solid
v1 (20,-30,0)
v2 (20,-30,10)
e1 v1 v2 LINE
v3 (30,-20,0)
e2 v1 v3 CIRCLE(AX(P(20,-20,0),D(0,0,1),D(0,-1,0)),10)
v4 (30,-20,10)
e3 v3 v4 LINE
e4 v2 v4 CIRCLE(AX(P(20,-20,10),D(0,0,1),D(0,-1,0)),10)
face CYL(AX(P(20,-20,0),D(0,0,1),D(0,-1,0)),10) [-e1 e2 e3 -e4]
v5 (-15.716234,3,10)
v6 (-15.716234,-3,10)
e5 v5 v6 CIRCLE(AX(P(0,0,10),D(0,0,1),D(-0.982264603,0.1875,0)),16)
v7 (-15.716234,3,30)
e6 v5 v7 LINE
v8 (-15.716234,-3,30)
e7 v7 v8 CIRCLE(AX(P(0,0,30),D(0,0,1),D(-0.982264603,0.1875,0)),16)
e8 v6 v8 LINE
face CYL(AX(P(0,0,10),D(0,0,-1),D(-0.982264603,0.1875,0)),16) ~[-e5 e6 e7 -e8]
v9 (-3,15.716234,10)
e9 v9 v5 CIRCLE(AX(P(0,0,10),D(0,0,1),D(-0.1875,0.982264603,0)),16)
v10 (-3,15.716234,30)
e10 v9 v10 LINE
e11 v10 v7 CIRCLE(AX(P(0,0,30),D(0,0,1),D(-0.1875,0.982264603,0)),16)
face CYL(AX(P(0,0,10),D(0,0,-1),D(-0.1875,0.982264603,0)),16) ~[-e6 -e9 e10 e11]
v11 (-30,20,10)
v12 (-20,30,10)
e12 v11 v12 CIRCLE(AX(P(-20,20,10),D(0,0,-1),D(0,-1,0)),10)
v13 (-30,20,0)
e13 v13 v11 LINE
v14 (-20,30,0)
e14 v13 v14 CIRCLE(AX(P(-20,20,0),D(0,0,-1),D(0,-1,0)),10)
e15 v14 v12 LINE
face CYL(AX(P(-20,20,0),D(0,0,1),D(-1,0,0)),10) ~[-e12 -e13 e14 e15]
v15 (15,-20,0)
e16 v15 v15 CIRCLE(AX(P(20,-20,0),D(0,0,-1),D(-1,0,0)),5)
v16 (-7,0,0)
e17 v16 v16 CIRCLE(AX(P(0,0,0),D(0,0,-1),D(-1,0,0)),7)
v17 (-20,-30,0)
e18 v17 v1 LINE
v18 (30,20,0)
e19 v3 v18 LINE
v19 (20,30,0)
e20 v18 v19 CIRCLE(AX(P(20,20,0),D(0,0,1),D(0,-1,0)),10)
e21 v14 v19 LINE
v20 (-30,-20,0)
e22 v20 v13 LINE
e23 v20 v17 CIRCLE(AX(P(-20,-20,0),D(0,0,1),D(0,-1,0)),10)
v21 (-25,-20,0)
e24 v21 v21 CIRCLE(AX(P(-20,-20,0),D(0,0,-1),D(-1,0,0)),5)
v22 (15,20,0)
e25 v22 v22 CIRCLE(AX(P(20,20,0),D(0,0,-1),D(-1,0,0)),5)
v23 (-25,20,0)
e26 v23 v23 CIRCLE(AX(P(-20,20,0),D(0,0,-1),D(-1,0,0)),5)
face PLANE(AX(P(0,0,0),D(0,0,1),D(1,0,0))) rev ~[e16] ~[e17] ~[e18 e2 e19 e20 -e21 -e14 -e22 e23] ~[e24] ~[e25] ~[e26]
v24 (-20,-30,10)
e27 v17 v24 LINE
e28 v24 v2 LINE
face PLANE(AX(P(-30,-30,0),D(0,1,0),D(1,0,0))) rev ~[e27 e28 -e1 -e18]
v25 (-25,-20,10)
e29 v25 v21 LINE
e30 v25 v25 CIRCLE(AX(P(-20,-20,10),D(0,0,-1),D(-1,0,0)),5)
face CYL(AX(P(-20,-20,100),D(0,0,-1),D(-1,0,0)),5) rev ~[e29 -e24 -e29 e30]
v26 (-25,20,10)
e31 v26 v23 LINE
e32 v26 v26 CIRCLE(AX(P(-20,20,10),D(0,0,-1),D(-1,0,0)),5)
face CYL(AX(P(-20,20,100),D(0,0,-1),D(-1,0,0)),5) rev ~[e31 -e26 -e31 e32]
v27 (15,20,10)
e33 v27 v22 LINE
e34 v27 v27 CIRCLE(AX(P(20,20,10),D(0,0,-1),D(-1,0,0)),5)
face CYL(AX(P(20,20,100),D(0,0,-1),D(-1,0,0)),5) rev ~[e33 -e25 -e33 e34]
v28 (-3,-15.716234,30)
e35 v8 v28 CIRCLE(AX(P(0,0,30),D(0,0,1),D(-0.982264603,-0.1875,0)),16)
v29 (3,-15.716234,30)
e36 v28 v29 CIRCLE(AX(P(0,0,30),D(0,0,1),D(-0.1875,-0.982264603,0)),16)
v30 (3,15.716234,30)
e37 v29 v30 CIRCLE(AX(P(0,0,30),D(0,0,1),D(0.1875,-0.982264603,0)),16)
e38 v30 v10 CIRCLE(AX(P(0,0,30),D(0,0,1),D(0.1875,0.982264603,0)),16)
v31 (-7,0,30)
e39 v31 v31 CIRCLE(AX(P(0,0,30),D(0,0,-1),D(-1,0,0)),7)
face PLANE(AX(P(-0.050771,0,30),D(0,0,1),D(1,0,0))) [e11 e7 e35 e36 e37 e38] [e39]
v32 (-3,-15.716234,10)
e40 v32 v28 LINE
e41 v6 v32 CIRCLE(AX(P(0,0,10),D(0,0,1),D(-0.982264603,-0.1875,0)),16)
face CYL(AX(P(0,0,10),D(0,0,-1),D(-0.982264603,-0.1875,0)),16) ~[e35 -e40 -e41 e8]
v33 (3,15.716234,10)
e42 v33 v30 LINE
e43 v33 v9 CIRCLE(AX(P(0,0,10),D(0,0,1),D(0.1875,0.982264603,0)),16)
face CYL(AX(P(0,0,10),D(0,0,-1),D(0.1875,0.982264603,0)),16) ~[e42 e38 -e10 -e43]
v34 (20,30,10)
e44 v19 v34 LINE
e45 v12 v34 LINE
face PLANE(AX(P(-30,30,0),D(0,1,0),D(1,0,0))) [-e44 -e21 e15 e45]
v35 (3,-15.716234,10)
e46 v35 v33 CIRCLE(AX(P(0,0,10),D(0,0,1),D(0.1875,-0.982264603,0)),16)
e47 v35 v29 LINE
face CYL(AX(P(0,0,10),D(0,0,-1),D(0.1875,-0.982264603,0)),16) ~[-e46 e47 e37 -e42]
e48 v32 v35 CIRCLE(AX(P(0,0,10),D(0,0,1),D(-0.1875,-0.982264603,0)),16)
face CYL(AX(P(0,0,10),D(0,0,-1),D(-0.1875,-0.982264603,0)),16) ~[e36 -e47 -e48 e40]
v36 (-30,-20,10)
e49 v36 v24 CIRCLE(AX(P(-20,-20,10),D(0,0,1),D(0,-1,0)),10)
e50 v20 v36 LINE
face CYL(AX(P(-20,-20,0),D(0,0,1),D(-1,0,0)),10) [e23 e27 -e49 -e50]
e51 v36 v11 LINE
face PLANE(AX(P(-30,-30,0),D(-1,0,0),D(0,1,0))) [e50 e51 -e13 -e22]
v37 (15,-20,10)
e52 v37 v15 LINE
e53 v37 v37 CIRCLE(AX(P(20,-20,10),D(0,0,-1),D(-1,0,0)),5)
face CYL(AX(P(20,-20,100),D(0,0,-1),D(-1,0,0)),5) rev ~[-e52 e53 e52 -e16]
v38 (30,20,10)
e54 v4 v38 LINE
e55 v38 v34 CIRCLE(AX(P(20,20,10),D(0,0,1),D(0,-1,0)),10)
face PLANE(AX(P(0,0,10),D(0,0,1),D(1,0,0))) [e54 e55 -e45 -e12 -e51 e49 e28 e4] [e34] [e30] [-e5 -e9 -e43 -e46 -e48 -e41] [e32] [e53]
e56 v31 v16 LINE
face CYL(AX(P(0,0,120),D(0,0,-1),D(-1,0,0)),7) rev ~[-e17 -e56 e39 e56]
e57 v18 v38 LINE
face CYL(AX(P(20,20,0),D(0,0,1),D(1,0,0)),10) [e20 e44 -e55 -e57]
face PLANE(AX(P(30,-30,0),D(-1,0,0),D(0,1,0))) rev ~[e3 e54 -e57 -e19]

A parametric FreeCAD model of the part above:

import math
import FreeCAD as App
import Part
import Sketcher
from FreeCAD import Vector
Q = App.Units.Quantity


def edges_at(feature, points):
    """Names of the edges that pass closest to the given points."""
    edges = feature.Shape.Edges
    near = lambda p: min(range(len(edges)), key=lambda i: edges[i].distToShape(Part.Vertex(*p))[0])
    return sorted({f"Edge{near(p) + 1}" for p in points})


def add_polygon(sketch, points):
    """Adds a closed chain of lines whose ends are joined by coincident constraints."""
    first, n = sketch.GeometryCount, len(points)
    for a, b in zip(points, points[1:] + points[:1]):
        sketch.addGeometry(Part.LineSegment(App.Vector(*a, 0), App.Vector(*b, 0)), False)
    for i in range(n):
        sketch.addConstraint(Sketcher.Constraint("Coincident", first + i, 2, first + (i + 1) % n, 1))

doc = App.newDocument("Part")
body = doc.addObject("PartDesign::Body", "Body")

# Sketch on XY plane
sketch1 = body.newObject("Sketcher::SketchObject", "Sketch")
sketch1.AttachmentSupport = (doc.getObject("XY_Plane"), [""])
sketch1.MapMode = "FlatFace"
add_polygon(sketch1, [(-30, 30), (-30, -30), (30, -30), (30, 30)])  # lines 0-3
sketch1.addConstraint([
    Sketcher.Constraint("Vertical", 0),
    Sketcher.Constraint("Horizontal", 1),
    Sketcher.Constraint("Vertical", 2),
    Sketcher.Constraint("Horizontal", 3),
    Sketcher.Constraint("Symmetric", 0, 2, 2, 2, -1, 1),
    Sketcher.Constraint("Equal", 3, 0),
    Sketcher.Constraint("DistanceX", 1, 1, 1, 2, Q("60 mm")),
])
pad1 = body.newObject("PartDesign::Pad", "Pad")
pad1.Profile = sketch1
pad1.Length = 10
doc.recompute()

fillet = body.newObject("PartDesign::Fillet", "Fillet")
fillet.Base = (pad1, edges_at(pad1, [
    (-30, 30, 5),
    (-30, -30, 5),
    (30, -30, 5),
    (30, 30, 5),
]))
fillet.Radius = 10

# Sketch on XY plane
sketch2 = body.newObject("Sketcher::SketchObject", "Sketch001")
sketch2.AttachmentSupport = (doc.getObject("XY_Plane"), [""])
sketch2.MapMode = "FlatFace"
sketch2.AttachmentOffset = App.Placement(Vector(0, 0, 10), App.Rotation())
sketch2.addGeometry([
    Part.ArcOfCircle(Part.Circle(Vector(0, 0, 0), Vector(0, 0, 1), 16), math.radians(79.193077), math.radians(100.806923)),  # 0
    Part.ArcOfCircle(Part.Circle(Vector(0, 0, 0), Vector(0, 0, 1), 16), math.radians(100.806923), math.radians(169.193077)),  # 1
    Part.ArcOfCircle(Part.Circle(Vector(0, 0, 0), Vector(0, 0, 1), 16), math.radians(169.193077), math.radians(190.806923)),  # 2
    Part.ArcOfCircle(Part.Circle(Vector(0, 0, 0), Vector(0, 0, 1), 16), math.radians(-169.193077), math.radians(-100.806923)),  # 3
    Part.ArcOfCircle(Part.Circle(Vector(0, 0, 0), Vector(0, 0, 1), 16), math.radians(-100.806923), math.radians(-79.193077)),  # 4
    Part.ArcOfCircle(Part.Circle(Vector(0, 0, 0), Vector(0, 0, 1), 16), math.radians(-79.193077), math.radians(79.193077)),  # 5
], False)
sketch2.addConstraint([
    Sketcher.Constraint("Tangent", 0, 2, 1, 1),
    Sketcher.Constraint("Tangent", 1, 2, 2, 1),
    Sketcher.Constraint("Tangent", 2, 2, 3, 1),
    Sketcher.Constraint("Tangent", 3, 2, 4, 1),
    Sketcher.Constraint("Tangent", 4, 2, 5, 1),
    Sketcher.Constraint("Tangent", 5, 2, 0, 1),
    Sketcher.Constraint("Coincident", 0, 3, -1, 1),
    Sketcher.Constraint("Coincident", 2, 3, -1, 1),
    Sketcher.Constraint("Equal", 2, 3),
    Sketcher.Constraint("Horizontal", 3, 2, 4, 2),
    Sketcher.Constraint("Horizontal", 0, 2, 5, 2),
    Sketcher.Constraint("Vertical", 1, 2, 2, 2),
    Sketcher.Constraint("Vertical", 0, 2, 3, 2),
    Sketcher.Constraint("Radius", 0, Q("16 mm")),
    Sketcher.Constraint("DistanceX", 0, 2, -1, 1, Q("3 mm")),
    Sketcher.Constraint("DistanceY", -1, 1, 1, 2, Q("3 mm")),
])
pad2 = body.newObject("PartDesign::Pad", "Pad001")
pad2.Profile = sketch2
pad2.Length = 20

# Sketch on XY plane
sketch3 = body.newObject("Sketcher::SketchObject", "Sketch002")
sketch3.AttachmentSupport = (doc.getObject("XY_Plane"), [""])
sketch3.MapMode = "FlatFace"
sketch3.AttachmentOffset = App.Placement(Vector(0, 0, 30), App.Rotation())
sketch3.addGeometry(Part.Circle(Vector(0, 0, 0), Vector(0, 0, 1), 7), False)
sketch3.addConstraint([
    Sketcher.Constraint("Coincident", 0, 3, -1, 1),
    Sketcher.Constraint("Diameter", 0, Q("14 mm")),
])
doc.recompute()
hole = body.newObject("PartDesign::Hole", "Hole")
hole.Profile = sketch3
hole.ThreadType = "None"
hole.Diameter = 14
hole.DepthType = "ThroughAll"

# Sketch on XY plane
sketch4 = body.newObject("Sketcher::SketchObject", "Sketch003")
sketch4.AttachmentSupport = (doc.getObject("XY_Plane"), [""])
sketch4.MapMode = "FlatFace"
sketch4.AttachmentOffset = App.Placement(Vector(0, 0, 10), App.Rotation())
sketch4.addGeometry([
    Part.Circle(Vector(-20, 20, 0), Vector(0, 0, 1), 5),
    Part.Circle(Vector(-20, -20, 0), Vector(0, 0, 1), 5),
    Part.Circle(Vector(20, -20, 0), Vector(0, 0, 1), 5),
    Part.Circle(Vector(20, 20, 0), Vector(0, 0, 1), 5),
], False)
sketch4.addConstraint([
    Sketcher.Constraint("Equal", 0, 1),
    Sketcher.Constraint("Equal", 1, 2),
    Sketcher.Constraint("Equal", 2, 3),
    Sketcher.Constraint("Symmetric", 0, 3, 2, 3, -1, 1),
    Sketcher.Constraint("Symmetric", 1, 3, 3, 3, -1, 1),
    Sketcher.Constraint("Symmetric", 1, 3, 2, 3, -2),
    Sketcher.Constraint("Diameter", 0, Q("10 mm")),
    Sketcher.Constraint("DistanceX", 0, 3, -1, 1, Q("20 mm")),
    Sketcher.Constraint("DistanceY", -1, 1, 0, 3, Q("20 mm")),
])
doc.recompute()
hole2 = body.newObject("PartDesign::Hole", "Hole001")
hole2.Profile = sketch4
hole2.ThreadType = "None"
hole2.Diameter = 10
hole2.DepthType = "ThroughAll"

doc.recompute()
